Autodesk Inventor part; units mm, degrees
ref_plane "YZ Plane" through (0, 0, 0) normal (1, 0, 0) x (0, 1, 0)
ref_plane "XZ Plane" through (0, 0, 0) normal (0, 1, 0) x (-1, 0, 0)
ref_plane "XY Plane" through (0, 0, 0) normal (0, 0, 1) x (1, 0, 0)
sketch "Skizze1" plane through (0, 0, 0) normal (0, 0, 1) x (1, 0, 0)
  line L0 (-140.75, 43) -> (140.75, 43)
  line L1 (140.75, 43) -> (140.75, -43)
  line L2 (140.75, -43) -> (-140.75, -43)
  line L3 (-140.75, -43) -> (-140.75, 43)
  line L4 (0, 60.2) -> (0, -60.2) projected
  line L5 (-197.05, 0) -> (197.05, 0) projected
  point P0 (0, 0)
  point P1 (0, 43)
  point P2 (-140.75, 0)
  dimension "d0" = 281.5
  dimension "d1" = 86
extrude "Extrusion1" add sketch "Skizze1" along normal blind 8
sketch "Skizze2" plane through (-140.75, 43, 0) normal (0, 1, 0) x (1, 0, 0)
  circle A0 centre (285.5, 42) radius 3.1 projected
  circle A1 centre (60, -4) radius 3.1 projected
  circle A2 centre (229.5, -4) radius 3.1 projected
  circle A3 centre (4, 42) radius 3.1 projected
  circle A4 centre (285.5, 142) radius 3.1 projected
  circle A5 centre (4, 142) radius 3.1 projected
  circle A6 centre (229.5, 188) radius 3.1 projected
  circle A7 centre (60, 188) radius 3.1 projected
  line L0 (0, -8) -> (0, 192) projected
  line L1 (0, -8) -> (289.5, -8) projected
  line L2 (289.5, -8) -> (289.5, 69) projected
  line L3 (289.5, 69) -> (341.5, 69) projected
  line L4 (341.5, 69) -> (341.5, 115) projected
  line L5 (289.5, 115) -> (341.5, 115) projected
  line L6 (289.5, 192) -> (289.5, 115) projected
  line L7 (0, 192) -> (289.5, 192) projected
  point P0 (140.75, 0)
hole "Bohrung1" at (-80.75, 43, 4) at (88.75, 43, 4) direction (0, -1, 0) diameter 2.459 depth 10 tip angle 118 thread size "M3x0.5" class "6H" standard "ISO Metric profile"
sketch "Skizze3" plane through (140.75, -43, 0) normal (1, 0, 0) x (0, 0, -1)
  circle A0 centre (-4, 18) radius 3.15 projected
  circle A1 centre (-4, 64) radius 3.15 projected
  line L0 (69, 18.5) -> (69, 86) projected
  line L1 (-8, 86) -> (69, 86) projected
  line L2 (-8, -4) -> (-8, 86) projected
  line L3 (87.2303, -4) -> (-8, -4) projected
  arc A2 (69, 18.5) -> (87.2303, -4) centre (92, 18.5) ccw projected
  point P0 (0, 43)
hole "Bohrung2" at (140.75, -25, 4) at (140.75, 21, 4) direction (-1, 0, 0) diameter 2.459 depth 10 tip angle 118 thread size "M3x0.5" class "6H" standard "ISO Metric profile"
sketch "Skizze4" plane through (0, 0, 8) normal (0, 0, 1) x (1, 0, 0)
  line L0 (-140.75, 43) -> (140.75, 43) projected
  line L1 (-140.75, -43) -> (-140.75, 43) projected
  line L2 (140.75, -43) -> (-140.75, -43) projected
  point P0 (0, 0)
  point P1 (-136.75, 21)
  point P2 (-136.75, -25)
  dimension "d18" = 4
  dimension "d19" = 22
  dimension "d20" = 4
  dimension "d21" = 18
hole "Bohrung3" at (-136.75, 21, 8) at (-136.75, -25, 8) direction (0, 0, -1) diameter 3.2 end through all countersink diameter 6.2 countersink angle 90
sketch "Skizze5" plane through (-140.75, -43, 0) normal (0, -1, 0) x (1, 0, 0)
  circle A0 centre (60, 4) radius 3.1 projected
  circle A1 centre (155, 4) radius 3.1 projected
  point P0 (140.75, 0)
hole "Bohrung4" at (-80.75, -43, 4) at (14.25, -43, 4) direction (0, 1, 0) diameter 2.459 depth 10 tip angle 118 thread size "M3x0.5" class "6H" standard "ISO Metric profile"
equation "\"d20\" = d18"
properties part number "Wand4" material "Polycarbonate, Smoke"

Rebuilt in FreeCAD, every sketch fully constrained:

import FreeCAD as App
import Part
import Sketcher
from FreeCAD import Vector
Q = App.Units.Quantity

doc = App.newDocument("Part")
body = doc.addObject("PartDesign::Body", "Body")

# Sketch on XY plane
sketch1 = body.newObject("Sketcher::SketchObject", "Sketch")
sketch1.AttachmentSupport = (doc.getObject("XY_Plane"), [""])
sketch1.MapMode = "FlatFace"
sketch1.addGeometry(Part.LineSegment(Vector(-140.75, 43, 0), Vector(-140.75, -43, 0)), False)
sketch1.addGeometry(Part.LineSegment(Vector(-140.75, -43, 0), Vector(140.75, -43, 0)), False)
sketch1.addGeometry(Part.LineSegment(Vector(140.75, -43, 0), Vector(140.75, 43, 0)), False)
sketch1.addGeometry(Part.LineSegment(Vector(140.75, 43, 0), Vector(-140.75, 43, 0)), False)
sketch1.addConstraint(Sketcher.Constraint("Coincident", 0, 2, 1, 1))
sketch1.addConstraint(Sketcher.Constraint("Coincident", 1, 2, 2, 1))
sketch1.addConstraint(Sketcher.Constraint("Coincident", 2, 2, 3, 1))
sketch1.addConstraint(Sketcher.Constraint("Coincident", 3, 2, 0, 1))
sketch1.addConstraint(Sketcher.Constraint("Vertical", 0))
sketch1.addConstraint(Sketcher.Constraint("Horizontal", 1))
sketch1.addConstraint(Sketcher.Constraint("Vertical", 2))
sketch1.addConstraint(Sketcher.Constraint("Horizontal", 3))
sketch1.addConstraint(Sketcher.Constraint("Symmetric", 0, 2, 2, 2, -1, 1))
sketch1.addConstraint(Sketcher.Constraint("DistanceY", 0, 2, 0, 1, Q("86 mm")))
sketch1.addConstraint(Sketcher.Constraint("DistanceX", 1, 1, 1, 2, Q("281.5 mm")))
pad1 = body.newObject("PartDesign::Pad", "Pad")
pad1.Profile = sketch1
pad1.Length = 8

# Sketch on XZ plane
sketch2 = body.newObject("Sketcher::SketchObject", "Sketch001")
sketch2.AttachmentSupport = (doc.getObject("XZ_Plane"), [""])
sketch2.MapMode = "FlatFace"
sketch2.AttachmentOffset = App.Placement(Vector(0, 0, -43), App.Rotation())
sketch2.addGeometry(Part.Circle(Vector(-80.75, 4, 0), Vector(0, 0, 1), 1.2295), False)
sketch2.addGeometry(Part.Circle(Vector(88.75, 4, 0), Vector(0, 0, 1), 1.2295), False)
sketch2.addConstraint(Sketcher.Constraint("Equal", 0, 1))
sketch2.addConstraint(Sketcher.Constraint("Horizontal", 0, 3, 1, 3))
sketch2.addConstraint(Sketcher.Constraint("Diameter", 0, Q("2.459 mm")))
sketch2.addConstraint(Sketcher.Constraint("DistanceY", -1, 1, 0, 3, Q("4 mm")))
sketch2.addConstraint(Sketcher.Constraint("DistanceX", 0, 3, 1, 3, Q("169.5 mm")))
sketch2.addConstraint(Sketcher.Constraint("DistanceX", 0, 3, -1, 1, Q("80.75 mm")))
doc.recompute()
hole = body.newObject("PartDesign::Hole", "Hole")
hole.Profile = sketch2
hole.ThreadType = "None"
hole.Diameter = 2.459
hole.DepthType = "Dimension"
hole.Depth = 10
hole.DrillPoint = "Angled"
hole.DrillPointAngle = 118
hole.Reversed = True

# Sketch on YZ plane
sketch3 = body.newObject("Sketcher::SketchObject", "Sketch002")
sketch3.AttachmentSupport = (doc.getObject("YZ_Plane"), [""])
sketch3.MapMode = "FlatFace"
sketch3.AttachmentOffset = App.Placement(Vector(0, 0, 140.75), App.Rotation())
sketch3.addGeometry(Part.Circle(Vector(-25, 4, 0), Vector(0, 0, 1), 1.2295), False)
sketch3.addGeometry(Part.Circle(Vector(21, 4, 0), Vector(0, 0, 1), 1.2295), False)
sketch3.addConstraint(Sketcher.Constraint("Equal", 0, 1))
sketch3.addConstraint(Sketcher.Constraint("Horizontal", 0, 3, 1, 3))
sketch3.addConstraint(Sketcher.Constraint("Diameter", 0, Q("2.459 mm")))
sketch3.addConstraint(Sketcher.Constraint("DistanceX", 0, 3, -1, 1, Q("25 mm")))
sketch3.addConstraint(Sketcher.Constraint("DistanceY", -1, 1, 0, 3, Q("4 mm")))
sketch3.addConstraint(Sketcher.Constraint("DistanceX", -1, 1, 1, 3, Q("21 mm")))
doc.recompute()
hole2 = body.newObject("PartDesign::Hole", "Hole001")
hole2.Profile = sketch3
hole2.ThreadType = "None"
hole2.Diameter = 2.459
hole2.DepthType = "Dimension"
hole2.Depth = 10
hole2.DrillPoint = "Angled"
hole2.DrillPointAngle = 118

# Sketch on XY plane
sketch4 = body.newObject("Sketcher::SketchObject", "Sketch003")
sketch4.AttachmentSupport = (doc.getObject("XY_Plane"), [""])
sketch4.MapMode = "FlatFace"
sketch4.AttachmentOffset = App.Placement(Vector(0, 0, 8), App.Rotation())
sketch4.addGeometry(Part.Circle(Vector(-136.75, 21, 0), Vector(0, 0, 1), 1.6), False)
sketch4.addGeometry(Part.Circle(Vector(-136.75, -25, 0), Vector(0, 0, 1), 1.6), False)
sketch4.addConstraint(Sketcher.Constraint("Equal", 0, 1))
sketch4.addConstraint(Sketcher.Constraint("Vertical", 0, 3, 1, 3))
sketch4.addConstraint(Sketcher.Constraint("Diameter", 0, Q("3.2 mm")))
sketch4.addConstraint(Sketcher.Constraint("DistanceY", -1, 1, 0, 3, Q("21 mm")))
sketch4.addConstraint(Sketcher.Constraint("DistanceY", 1, 3, -1, 1, Q("25 mm")))
sketch4.addConstraint(Sketcher.Constraint("DistanceX", 0, 3, -1, 1, Q("136.75 mm")))
doc.recompute()
hole3 = body.newObject("PartDesign::Hole", "Hole002")
hole3.Profile = sketch4
hole3.ThreadType = "None"
hole3.Diameter = 3.2
hole3.DepthType = "ThroughAll"
hole3.HoleCutType = "Countersink"
hole3.HoleCutDiameter = 6.2
hole3.HoleCutCountersinkAngle = 90

# Sketch on XZ plane
sketch5 = body.newObject("Sketcher::SketchObject", "Sketch004")
sketch5.AttachmentSupport = (doc.getObject("XZ_Plane"), [""])
sketch5.MapMode = "FlatFace"
sketch5.AttachmentOffset = App.Placement(Vector(0, 0, 43), App.Rotation())
sketch5.addGeometry(Part.Circle(Vector(-80.75, 4, 0), Vector(0, 0, 1), 1.2295), False)
sketch5.addGeometry(Part.Circle(Vector(14.25, 4, 0), Vector(0, 0, 1), 1.2295), False)
sketch5.addConstraint(Sketcher.Constraint("Equal", 0, 1))
sketch5.addConstraint(Sketcher.Constraint("Horizontal", 0, 3, 1, 3))
sketch5.addConstraint(Sketcher.Constraint("Diameter", 0, Q("2.459 mm")))
sketch5.addConstraint(Sketcher.Constraint("DistanceY", -1, 1, 0, 3, Q("4 mm")))
sketch5.addConstraint(Sketcher.Constraint("DistanceX", 0, 3, 1, 3, Q("95 mm")))
sketch5.addConstraint(Sketcher.Constraint("DistanceX", 0, 3, -1, 1, Q("80.75 mm")))
doc.recompute()
hole4 = body.newObject("PartDesign::Hole", "Hole003")
hole4.Profile = sketch5
hole4.ThreadType = "None"
hole4.Diameter = 2.459
hole4.DepthType = "Dimension"
hole4.Depth = 10
hole4.DrillPoint = "Angled"
hole4.DrillPointAngle = 118

doc.recompute()
